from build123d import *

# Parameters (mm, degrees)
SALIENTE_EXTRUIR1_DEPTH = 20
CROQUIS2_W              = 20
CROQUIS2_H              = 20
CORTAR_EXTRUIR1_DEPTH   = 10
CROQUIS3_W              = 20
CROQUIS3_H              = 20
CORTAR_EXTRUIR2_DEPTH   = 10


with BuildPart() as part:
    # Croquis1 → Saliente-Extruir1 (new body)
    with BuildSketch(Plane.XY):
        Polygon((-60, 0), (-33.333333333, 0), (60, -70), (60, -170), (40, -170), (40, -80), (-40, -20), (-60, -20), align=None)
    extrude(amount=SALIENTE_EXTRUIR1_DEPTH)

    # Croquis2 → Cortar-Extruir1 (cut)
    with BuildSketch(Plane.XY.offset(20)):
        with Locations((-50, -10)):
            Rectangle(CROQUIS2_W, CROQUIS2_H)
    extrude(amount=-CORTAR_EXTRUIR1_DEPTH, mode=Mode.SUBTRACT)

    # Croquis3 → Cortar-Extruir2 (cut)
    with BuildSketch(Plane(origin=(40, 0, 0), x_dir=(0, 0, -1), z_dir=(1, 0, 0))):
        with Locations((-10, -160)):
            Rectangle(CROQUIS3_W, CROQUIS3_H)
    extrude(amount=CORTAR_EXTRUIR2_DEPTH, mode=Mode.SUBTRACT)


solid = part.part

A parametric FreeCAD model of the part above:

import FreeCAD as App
import Part
import Sketcher


def add_polygon(sketch, points):
    """Adds a closed chain of lines whose ends are joined by coincident constraints."""
    first, n = sketch.GeometryCount, len(points)
    for a, b in zip(points, points[1:] + points[:1]):
        sketch.addGeometry(Part.LineSegment(App.Vector(*a, 0), App.Vector(*b, 0)), False)
    for i in range(n):
        sketch.addConstraint(Sketcher.Constraint("Coincident", first + i, 2, first + (i + 1) % n, 1))

doc = App.newDocument("Part")
params = doc.addObject("Spreadsheet::Sheet", "Params")
for row, (alias, value) in enumerate([
    ("sketch1_width", "20 mm"),
    ("sketch1_height", "90 mm"),
    ("sketch1_height2", "100 mm"),
    ("sketch1_length", "100 mm"),
    ("pad1_length", "20 mm"),
    ("sketch2_width", "20 mm"),
    ("pocket1_length", "10 mm"),
    ("sketch3_width", "20 mm"),
    ("pocket2_length", "10 mm"),
], start=1):
    params.set(f"A{row}", alias)
    params.set(f"B{row}", "=" + value)
    params.setAlias(f"B{row}", alias)

body = doc.addObject("PartDesign::Body", "Body")

sketch1 = body.newObject("Sketcher::SketchObject", "Sketch")
sketch1.AttachmentSupport = (doc.getObject("XY_Plane"), [""])
sketch1.MapMode = "FlatFace"
add_polygon(sketch1, [(-33, 0), (-60, 0), (-60, -20), (-40, -20), (40, -80), (40, -170), (60, -170), (60, -70)])
sketch1.addConstraint([
    Sketcher.Constraint("Horizontal", 0),
    Sketcher.Constraint("Vertical", 1),
    Sketcher.Constraint("Horizontal", 2),
    Sketcher.Constraint("Vertical", 4),
    Sketcher.Constraint("Horizontal", 5),
    Sketcher.Constraint("Vertical", 6),
    Sketcher.Constraint("PointOnObject", 0, 2, -1),
    Sketcher.Constraint("Parallel", 3, 7),
    Sketcher.Constraint("Equal", 2, 5),
    Sketcher.Constraint("Equal", 5, 1),
    Sketcher.Constraint("DistanceX", 2, 1, 2, 2, 20.0),
    Sketcher.Constraint("DistanceY", 4, 2, 4, 1, 90.0),
    Sketcher.Constraint("DistanceY", 6, 1, 6, 2, 100.0),
    Sketcher.Constraint("Distance", 3, 100.0),
    Sketcher.Constraint("DistanceX", 0, 2, -1, 1, 60.0),
    Sketcher.Constraint("DistanceX", -1, 1, 3, 2, 40.0),
])
sketch1.setExpression("Constraints[18]", "Params.sketch1_width")
sketch1.setExpression("Constraints[19]", "Params.sketch1_height")
sketch1.setExpression("Constraints[20]", "Params.sketch1_height2")
sketch1.setExpression("Constraints[21]", "Params.sketch1_length")
pad1 = body.newObject("PartDesign::Pad", "Pad")
pad1.Profile = sketch1
pad1.setExpression("Length", "Params.pad1_length")

sketch2 = body.newObject("Sketcher::SketchObject", "Sketch001")
sketch2.AttachmentSupport = (doc.getObject("XY_Plane"), [""])
sketch2.MapMode = "FlatFace"
sketch2.AttachmentOffset = App.Placement(App.Vector(0, 0, 20), App.Rotation())
add_polygon(sketch2, [(-60, 0), (-60, -20), (-40, -20), (-40, 0)])
sketch2.addConstraint([
    Sketcher.Constraint("Vertical", 0),
    Sketcher.Constraint("Horizontal", 1),
    Sketcher.Constraint("Vertical", 2),
    Sketcher.Constraint("Horizontal", 3),
    Sketcher.Constraint("PointOnObject", 2, 2, -1),
    Sketcher.Constraint("Equal", 3, 0),
    Sketcher.Constraint("DistanceX", 1, 1, 1, 2, 20.0),
    Sketcher.Constraint("DistanceX", 0, 2, -1, 1, 60.0),
])
sketch2.setExpression("Constraints[10]", "Params.sketch2_width")
pocket1 = body.newObject("PartDesign::Pocket", "Pocket")
pocket1.Profile = sketch2
pocket1.setExpression("Length", "Params.pocket1_length")

sketch3 = body.newObject("Sketcher::SketchObject", "Sketch002")
sketch3.AttachmentSupport = (doc.getObject("YZ_Plane"), [""])
sketch3.MapMode = "FlatFace"
sketch3.AttachmentOffset = App.Placement(App.Vector(0, 0, 40), App.Rotation())
add_polygon(sketch3, [(-150, 20), (-170, 20), (-170, 0), (-150, 0)])
sketch3.addConstraint([
    Sketcher.Constraint("Horizontal", 0),
    Sketcher.Constraint("Vertical", 1),
    Sketcher.Constraint("Horizontal", 2),
    Sketcher.Constraint("Vertical", 3),
    Sketcher.Constraint("PointOnObject", 1, 2, -1),
    Sketcher.Constraint("Equal", 2, 1),
    Sketcher.Constraint("DistanceX", 0, 2, 0, 1, 20.0),
    Sketcher.Constraint("DistanceX", 0, 2, -1, 1, 170.0),
])
sketch3.setExpression("Constraints[10]", "Params.sketch3_width")
pocket2 = body.newObject("PartDesign::Pocket", "Pocket001")
pocket2.Profile = sketch3
pocket2.setExpression("Length", "Params.pocket2_length")
pocket2.Reversed = True

doc.recompute()
